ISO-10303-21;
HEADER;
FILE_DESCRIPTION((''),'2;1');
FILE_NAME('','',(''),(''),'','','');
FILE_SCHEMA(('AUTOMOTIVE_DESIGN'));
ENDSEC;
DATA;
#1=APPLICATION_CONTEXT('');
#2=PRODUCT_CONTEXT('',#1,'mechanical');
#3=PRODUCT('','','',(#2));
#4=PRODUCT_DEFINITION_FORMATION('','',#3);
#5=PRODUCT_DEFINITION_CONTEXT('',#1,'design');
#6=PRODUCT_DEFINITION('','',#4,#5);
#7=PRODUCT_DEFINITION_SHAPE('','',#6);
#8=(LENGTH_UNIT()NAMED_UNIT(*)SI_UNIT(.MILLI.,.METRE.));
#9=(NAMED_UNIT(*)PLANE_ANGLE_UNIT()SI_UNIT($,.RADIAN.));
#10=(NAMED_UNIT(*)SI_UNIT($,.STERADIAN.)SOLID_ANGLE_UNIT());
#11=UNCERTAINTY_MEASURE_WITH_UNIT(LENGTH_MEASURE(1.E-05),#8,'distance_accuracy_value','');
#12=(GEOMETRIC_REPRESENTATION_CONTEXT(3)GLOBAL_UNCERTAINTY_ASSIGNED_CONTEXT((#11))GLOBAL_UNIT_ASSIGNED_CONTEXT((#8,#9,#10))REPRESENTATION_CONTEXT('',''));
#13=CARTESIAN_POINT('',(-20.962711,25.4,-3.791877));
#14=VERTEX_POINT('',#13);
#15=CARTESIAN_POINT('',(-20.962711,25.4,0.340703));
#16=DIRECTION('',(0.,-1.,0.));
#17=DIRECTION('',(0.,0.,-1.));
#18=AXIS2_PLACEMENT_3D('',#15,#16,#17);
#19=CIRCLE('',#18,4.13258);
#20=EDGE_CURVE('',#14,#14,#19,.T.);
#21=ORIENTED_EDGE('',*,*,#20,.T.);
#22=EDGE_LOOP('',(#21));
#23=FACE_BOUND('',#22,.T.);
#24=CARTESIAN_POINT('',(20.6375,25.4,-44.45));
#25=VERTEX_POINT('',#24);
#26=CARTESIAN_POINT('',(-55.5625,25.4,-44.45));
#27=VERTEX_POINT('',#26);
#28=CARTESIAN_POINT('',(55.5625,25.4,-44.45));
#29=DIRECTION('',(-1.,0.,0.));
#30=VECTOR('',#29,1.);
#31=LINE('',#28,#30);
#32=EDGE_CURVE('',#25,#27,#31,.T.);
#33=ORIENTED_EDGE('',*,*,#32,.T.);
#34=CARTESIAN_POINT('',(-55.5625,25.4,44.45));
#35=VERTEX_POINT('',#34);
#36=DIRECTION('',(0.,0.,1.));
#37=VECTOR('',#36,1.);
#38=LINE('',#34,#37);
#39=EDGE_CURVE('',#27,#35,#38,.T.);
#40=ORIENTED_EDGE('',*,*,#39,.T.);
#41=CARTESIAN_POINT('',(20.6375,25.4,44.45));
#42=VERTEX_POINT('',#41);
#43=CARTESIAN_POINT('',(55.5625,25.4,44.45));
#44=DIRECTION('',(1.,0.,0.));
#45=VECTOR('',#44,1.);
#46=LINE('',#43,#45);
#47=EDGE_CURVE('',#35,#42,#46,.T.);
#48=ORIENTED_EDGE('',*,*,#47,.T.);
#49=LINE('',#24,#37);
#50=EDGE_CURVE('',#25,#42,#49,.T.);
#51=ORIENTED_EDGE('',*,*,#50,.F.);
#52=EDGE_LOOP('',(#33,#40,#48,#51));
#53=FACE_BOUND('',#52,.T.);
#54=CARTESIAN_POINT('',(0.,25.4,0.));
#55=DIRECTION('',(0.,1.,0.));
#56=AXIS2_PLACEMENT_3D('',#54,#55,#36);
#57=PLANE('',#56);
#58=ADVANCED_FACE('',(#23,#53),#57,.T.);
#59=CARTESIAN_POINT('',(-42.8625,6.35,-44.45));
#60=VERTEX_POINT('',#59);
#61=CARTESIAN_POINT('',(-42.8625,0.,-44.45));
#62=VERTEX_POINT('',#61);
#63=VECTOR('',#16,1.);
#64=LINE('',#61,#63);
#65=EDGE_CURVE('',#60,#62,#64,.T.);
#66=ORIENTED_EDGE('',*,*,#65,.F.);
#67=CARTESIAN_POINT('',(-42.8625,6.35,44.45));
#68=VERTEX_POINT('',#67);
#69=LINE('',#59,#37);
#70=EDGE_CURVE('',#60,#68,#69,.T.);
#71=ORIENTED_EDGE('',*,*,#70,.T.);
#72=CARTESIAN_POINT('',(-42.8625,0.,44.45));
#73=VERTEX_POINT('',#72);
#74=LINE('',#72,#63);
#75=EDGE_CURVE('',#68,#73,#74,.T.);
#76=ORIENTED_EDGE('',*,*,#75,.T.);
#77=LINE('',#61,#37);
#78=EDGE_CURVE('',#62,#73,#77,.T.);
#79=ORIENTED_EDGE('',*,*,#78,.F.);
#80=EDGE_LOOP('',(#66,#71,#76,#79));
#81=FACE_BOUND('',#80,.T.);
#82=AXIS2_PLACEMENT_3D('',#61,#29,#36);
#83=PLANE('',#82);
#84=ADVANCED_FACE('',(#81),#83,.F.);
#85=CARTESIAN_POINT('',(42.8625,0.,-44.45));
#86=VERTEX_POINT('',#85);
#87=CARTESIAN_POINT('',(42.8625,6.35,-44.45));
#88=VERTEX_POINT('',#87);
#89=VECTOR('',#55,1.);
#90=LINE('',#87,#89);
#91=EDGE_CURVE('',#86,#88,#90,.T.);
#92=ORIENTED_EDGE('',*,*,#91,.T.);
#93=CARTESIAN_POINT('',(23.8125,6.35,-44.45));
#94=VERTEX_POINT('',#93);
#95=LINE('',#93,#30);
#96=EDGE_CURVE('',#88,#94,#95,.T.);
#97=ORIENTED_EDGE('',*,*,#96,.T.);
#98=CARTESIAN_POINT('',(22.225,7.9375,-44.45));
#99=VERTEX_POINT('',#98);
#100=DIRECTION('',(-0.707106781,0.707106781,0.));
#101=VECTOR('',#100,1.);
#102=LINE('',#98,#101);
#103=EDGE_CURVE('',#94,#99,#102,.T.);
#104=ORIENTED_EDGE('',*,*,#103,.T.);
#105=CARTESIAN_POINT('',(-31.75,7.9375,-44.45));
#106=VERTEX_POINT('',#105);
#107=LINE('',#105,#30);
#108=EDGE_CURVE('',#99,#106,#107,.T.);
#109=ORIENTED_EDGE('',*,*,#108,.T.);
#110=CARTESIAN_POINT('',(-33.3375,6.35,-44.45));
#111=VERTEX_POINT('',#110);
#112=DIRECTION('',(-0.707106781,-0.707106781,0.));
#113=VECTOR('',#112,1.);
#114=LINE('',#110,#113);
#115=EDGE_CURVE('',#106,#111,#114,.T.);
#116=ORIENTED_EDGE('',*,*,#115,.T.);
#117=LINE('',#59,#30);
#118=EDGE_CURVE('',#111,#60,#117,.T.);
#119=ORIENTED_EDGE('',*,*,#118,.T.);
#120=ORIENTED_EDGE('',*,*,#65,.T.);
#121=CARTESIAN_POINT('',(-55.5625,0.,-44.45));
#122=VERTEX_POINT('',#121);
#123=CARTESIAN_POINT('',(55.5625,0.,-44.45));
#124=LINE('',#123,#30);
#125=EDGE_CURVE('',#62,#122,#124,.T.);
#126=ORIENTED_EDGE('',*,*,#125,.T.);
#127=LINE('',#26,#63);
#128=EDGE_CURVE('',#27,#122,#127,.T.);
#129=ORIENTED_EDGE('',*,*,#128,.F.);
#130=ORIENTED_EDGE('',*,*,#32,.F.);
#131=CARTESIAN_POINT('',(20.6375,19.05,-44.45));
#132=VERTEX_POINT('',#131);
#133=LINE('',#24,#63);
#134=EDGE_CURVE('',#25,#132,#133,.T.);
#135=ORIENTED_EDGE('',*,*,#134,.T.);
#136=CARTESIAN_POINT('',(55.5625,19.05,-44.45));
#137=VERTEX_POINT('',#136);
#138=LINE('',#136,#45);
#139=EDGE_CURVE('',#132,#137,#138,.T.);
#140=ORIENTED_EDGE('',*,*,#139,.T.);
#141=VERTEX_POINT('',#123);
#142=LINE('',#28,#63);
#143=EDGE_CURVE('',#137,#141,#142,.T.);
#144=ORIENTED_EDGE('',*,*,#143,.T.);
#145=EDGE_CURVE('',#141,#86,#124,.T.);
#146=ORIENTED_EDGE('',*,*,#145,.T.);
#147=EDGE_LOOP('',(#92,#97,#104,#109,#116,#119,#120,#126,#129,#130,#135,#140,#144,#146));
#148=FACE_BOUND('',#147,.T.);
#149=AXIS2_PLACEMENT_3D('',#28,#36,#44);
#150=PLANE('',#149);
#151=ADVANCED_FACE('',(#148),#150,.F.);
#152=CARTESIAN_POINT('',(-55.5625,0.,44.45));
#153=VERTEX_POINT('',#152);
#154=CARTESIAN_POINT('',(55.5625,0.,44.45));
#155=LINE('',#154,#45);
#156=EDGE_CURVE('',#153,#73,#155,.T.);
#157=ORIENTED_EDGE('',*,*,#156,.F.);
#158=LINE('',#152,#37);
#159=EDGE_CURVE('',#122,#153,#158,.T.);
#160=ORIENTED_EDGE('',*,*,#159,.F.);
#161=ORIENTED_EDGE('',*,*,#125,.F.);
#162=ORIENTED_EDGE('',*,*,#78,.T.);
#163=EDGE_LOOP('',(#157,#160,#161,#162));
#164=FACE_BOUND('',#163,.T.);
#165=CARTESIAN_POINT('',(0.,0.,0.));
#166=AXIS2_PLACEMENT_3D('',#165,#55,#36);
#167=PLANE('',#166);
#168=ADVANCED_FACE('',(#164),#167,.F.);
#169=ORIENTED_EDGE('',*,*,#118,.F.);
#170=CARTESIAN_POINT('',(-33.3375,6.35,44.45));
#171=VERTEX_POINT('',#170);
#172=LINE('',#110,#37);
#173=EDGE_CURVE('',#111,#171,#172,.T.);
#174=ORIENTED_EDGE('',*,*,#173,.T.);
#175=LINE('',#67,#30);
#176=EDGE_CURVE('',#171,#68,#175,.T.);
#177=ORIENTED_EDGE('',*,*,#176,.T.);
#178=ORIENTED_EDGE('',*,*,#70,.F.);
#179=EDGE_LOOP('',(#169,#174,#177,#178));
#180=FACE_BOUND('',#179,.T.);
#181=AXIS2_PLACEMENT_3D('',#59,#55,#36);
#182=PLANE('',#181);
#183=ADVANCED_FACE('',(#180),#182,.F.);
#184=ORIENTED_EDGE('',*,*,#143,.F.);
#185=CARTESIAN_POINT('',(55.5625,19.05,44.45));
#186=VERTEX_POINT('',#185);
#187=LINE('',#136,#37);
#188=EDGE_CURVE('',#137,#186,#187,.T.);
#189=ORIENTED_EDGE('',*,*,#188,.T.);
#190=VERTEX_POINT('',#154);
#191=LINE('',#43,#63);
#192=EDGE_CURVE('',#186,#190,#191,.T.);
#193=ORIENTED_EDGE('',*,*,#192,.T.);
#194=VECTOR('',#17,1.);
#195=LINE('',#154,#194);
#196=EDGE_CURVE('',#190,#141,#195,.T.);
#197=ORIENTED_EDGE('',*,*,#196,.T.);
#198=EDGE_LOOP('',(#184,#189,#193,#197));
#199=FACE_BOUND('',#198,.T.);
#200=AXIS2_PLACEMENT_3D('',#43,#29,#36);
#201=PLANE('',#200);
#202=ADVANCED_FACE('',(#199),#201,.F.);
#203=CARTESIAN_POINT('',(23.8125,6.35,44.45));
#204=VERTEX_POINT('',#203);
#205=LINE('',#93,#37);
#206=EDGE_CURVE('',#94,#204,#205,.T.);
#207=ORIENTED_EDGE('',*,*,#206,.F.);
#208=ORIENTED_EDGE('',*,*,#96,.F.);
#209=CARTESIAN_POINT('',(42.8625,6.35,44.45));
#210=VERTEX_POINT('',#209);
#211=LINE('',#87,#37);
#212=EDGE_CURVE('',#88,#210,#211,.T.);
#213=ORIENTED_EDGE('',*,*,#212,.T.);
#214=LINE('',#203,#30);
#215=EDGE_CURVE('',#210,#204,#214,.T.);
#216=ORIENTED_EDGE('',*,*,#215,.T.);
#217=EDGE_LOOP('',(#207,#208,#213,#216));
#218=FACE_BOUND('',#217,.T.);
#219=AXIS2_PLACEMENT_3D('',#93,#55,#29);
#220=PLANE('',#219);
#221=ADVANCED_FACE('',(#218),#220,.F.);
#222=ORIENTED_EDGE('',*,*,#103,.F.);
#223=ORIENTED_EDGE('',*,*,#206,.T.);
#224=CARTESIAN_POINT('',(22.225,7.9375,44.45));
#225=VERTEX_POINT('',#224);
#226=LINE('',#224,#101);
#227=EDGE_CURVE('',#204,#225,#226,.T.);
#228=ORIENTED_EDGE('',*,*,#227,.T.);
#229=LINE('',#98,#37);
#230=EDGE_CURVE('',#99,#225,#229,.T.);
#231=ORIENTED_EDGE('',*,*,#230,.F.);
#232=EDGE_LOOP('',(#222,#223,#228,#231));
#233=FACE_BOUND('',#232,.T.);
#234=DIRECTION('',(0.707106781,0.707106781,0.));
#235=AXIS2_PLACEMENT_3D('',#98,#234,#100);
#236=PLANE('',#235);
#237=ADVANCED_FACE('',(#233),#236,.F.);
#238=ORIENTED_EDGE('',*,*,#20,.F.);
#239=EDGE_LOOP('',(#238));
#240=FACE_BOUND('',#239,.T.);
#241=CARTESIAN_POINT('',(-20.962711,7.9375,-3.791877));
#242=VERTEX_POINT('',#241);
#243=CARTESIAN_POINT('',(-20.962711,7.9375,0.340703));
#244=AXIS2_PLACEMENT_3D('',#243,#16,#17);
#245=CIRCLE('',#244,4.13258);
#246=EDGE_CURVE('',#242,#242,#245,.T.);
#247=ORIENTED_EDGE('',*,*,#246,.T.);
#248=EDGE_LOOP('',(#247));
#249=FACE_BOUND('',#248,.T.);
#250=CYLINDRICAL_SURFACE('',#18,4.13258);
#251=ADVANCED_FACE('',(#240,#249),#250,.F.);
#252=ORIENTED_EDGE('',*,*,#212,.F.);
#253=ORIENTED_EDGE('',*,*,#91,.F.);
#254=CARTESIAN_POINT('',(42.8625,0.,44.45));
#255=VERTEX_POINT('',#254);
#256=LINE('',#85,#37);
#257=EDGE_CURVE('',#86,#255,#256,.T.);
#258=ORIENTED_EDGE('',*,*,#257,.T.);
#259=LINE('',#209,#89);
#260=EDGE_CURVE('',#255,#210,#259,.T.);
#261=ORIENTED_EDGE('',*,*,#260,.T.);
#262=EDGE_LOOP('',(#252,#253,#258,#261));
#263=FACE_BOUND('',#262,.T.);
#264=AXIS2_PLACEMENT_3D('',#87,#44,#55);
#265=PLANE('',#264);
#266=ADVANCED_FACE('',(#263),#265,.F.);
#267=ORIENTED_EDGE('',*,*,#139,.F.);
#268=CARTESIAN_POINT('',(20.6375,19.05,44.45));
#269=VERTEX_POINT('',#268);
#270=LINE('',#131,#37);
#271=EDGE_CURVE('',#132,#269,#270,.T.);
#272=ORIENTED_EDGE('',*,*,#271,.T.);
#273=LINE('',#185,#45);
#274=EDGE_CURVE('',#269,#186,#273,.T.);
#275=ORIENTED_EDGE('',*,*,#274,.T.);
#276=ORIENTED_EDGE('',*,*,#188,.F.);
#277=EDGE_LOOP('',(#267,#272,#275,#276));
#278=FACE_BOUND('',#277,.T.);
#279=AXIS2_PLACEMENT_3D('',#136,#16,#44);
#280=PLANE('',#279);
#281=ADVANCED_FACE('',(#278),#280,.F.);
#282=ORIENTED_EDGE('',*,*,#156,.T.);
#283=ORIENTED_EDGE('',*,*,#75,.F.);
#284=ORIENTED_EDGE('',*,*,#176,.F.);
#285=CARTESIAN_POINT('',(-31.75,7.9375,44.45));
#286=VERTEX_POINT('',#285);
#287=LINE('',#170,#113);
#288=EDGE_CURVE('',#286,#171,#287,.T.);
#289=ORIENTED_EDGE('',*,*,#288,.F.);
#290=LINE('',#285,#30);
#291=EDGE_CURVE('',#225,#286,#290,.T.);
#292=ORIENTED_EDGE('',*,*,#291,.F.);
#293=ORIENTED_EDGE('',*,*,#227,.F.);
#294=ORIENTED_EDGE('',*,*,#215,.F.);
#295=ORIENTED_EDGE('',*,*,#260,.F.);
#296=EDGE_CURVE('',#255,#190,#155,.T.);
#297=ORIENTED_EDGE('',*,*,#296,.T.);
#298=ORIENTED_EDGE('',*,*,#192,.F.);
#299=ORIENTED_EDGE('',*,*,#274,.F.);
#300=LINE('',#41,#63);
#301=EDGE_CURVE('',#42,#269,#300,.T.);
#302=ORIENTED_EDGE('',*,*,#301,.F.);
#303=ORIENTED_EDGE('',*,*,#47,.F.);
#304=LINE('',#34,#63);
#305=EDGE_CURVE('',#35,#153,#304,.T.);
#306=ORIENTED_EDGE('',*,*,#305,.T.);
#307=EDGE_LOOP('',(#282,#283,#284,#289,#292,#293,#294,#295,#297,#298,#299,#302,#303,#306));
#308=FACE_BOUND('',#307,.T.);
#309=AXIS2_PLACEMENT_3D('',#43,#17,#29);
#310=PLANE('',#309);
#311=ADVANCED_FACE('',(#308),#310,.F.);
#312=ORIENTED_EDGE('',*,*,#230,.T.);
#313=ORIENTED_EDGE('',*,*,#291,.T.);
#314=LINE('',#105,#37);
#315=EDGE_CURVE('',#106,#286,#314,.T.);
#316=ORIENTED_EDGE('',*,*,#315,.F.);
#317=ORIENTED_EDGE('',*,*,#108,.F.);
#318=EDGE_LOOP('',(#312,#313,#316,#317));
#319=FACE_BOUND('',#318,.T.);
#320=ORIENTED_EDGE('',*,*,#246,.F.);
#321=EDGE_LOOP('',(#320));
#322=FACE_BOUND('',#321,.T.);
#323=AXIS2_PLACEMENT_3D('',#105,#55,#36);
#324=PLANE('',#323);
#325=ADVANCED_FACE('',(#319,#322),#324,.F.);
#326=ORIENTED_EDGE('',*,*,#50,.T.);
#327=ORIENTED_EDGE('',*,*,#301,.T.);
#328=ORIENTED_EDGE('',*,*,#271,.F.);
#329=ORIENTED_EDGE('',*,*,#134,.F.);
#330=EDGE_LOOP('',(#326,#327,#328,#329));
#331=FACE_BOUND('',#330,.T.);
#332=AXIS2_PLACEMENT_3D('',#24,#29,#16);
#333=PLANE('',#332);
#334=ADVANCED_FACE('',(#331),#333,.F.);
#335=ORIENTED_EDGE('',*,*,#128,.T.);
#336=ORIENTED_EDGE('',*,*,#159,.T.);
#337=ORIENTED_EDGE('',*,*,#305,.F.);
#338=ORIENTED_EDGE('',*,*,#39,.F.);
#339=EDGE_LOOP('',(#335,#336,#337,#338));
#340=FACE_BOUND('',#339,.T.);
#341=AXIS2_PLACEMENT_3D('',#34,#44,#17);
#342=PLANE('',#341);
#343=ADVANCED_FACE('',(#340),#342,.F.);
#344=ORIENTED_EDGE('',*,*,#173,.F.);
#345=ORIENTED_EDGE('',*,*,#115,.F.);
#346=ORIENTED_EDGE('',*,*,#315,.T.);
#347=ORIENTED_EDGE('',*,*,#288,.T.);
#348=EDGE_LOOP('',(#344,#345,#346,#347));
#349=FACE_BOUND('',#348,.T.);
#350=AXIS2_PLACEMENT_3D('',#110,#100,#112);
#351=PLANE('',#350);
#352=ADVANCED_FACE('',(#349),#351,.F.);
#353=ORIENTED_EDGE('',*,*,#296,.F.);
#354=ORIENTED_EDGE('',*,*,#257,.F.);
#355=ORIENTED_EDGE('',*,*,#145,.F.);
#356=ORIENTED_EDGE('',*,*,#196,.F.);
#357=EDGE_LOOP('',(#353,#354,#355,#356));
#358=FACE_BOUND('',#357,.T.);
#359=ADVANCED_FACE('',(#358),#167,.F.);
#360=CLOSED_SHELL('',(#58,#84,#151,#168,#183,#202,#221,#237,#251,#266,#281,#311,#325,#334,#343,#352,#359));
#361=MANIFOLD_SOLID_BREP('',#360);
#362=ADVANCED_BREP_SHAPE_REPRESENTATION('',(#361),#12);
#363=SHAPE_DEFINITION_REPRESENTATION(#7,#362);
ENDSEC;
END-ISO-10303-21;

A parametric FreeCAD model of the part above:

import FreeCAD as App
import Part
import Sketcher

V = App.Vector
Q = App.Units.Quantity

doc = App.newDocument("Part")
params = doc.addObject("Spreadsheet::Sheet", "Params")
for row, (alias, value) in enumerate([
    ("sketch1_height", "3.5 in"),
    ("sketch1_width", "4.375 in"),
    ("pad1_length", "1 in"),
    ("sketch2_width", "0.75 in"),
    ("sketch2_height", "0.25 in"),
    ("sketch2_width2", "3.375 in"),
    ("sketch2_width3", "2.125 in"),
    ("sketch2_width4", "1.375 in"),
], start=1):
    params.set(f"A{row}", alias)
    params.set(f"B{row}", "=" + value)
    params.setAlias(f"B{row}", alias)

body = doc.addObject("PartDesign::Body", "Body")

# Sketch on XZ plane
sketch1 = body.newObject("Sketcher::SketchObject", "Sketch")
sketch1.AttachmentSupport = (doc.getObject("XZ_Plane"), [""])
sketch1.MapMode = "FlatFace"
sketch1.addGeometry(Part.LineSegment(V(-56, -44, 0), V(-56, 44, 0)), False)
sketch1.addGeometry(Part.LineSegment(V(-56, 44, 0), V(56, 44, 0)), False)
sketch1.addGeometry(Part.LineSegment(V(56, 44, 0), V(56, -44, 0)), False)
sketch1.addGeometry(Part.LineSegment(V(56, -44, 0), V(-56, -44, 0)), False)
sketch1.addConstraint(Sketcher.Constraint("Coincident", 0, 2, 1, 1))
sketch1.addConstraint(Sketcher.Constraint("Coincident", 1, 2, 2, 1))
sketch1.addConstraint(Sketcher.Constraint("Coincident", 2, 2, 3, 1))
sketch1.addConstraint(Sketcher.Constraint("Coincident", 3, 2, 0, 1))
sketch1.addConstraint(Sketcher.Constraint("Vertical", 0))
sketch1.addConstraint(Sketcher.Constraint("Horizontal", 1))
sketch1.addConstraint(Sketcher.Constraint("Vertical", 2))
sketch1.addConstraint(Sketcher.Constraint("Horizontal", 3))
sketch1.addConstraint(Sketcher.Constraint("Symmetric", 0, 2, 2, 2, -1, 1))
sketch1.addConstraint(Sketcher.Constraint("DistanceY", 0, 1, 0, 2, Q("3.5 in")))
sketch1.addConstraint(Sketcher.Constraint("DistanceX", 1, 1, 1, 2, Q("4.375 in")))
sketch1.setExpression("Constraints[9]", "Params.sketch1_height")
sketch1.setExpression("Constraints[10]", "Params.sketch1_width")
pad1 = body.newObject("PartDesign::Pad", "Pad")
pad1.Profile = sketch1
pad1.setExpression("Length", "Params.pad1_length")
pad1.Reversed = True

# Sketch on XY plane
sketch2 = body.newObject("Sketcher::SketchObject", "Sketch001")
sketch2.AttachmentSupport = (doc.getObject("XY_Plane"), [""])
sketch2.MapMode = "FlatFace"
sketch2.AttachmentOffset = App.Placement(V(0, 0, 1.75 * 25.4), App.Rotation())
sketch2.addGeometry(Part.LineSegment(V(-42.9, 6.3, 0), V(-42.9, 0, 0)), False)
sketch2.addGeometry(Part.LineSegment(V(-42.9, 0, 0), V(42.9, 0, 0)), False)
sketch2.addGeometry(Part.LineSegment(V(42.9, 0, 0), V(42.9, 6.3, 0)), False)
sketch2.addGeometry(Part.LineSegment(V(42.9, 6.3, 0), V(23.8, 6.3, 0)), False)
sketch2.addGeometry(Part.LineSegment(V(23.8, 6.3, 0), V(22.2, 7.9, 0)), False)
sketch2.addGeometry(Part.LineSegment(V(22.2, 7.9, 0), V(-31.8, 7.9, 0)), False)
sketch2.addGeometry(Part.LineSegment(V(-31.8, 7.9, 0), V(-33.3, 6.3, 0)), False)
sketch2.addGeometry(Part.LineSegment(V(-33.3, 6.3, 0), V(-42.9, 6.3, 0)), False)
sketch2.addGeometry(Part.LineSegment(V(20.6, 25.4, 0), V(20.6, 19.1, 0)), False)
sketch2.addGeometry(Part.LineSegment(V(20.6, 19.1, 0), V(55.6, 19.1, 0)), False)
sketch2.addGeometry(Part.LineSegment(V(55.6, 19.1, 0), V(55.6, 25.4, 0)), False)
sketch2.addGeometry(Part.LineSegment(V(55.6, 25.4, 0), V(20.6, 25.4, 0)), False)
sketch2.addConstraint(Sketcher.Constraint("Coincident", 0, 2, 1, 1))
sketch2.addConstraint(Sketcher.Constraint("Coincident", 1, 2, 2, 1))
sketch2.addConstraint(Sketcher.Constraint("Coincident", 2, 2, 3, 1))
sketch2.addConstraint(Sketcher.Constraint("Coincident", 3, 2, 4, 1))
sketch2.addConstraint(Sketcher.Constraint("Coincident", 4, 2, 5, 1))
sketch2.addConstraint(Sketcher.Constraint("Coincident", 5, 2, 6, 1))
sketch2.addConstraint(Sketcher.Constraint("Coincident", 6, 2, 7, 1))
sketch2.addConstraint(Sketcher.Constraint("Coincident", 7, 2, 0, 1))
sketch2.addConstraint(Sketcher.Constraint("Coincident", 8, 2, 9, 1))
sketch2.addConstraint(Sketcher.Constraint("Coincident", 9, 2, 10, 1))
sketch2.addConstraint(Sketcher.Constraint("Coincident", 10, 2, 11, 1))
sketch2.addConstraint(Sketcher.Constraint("Coincident", 11, 2, 8, 1))
sketch2.addConstraint(Sketcher.Constraint("Vertical", 0))
sketch2.addConstraint(Sketcher.Constraint("Horizontal", 1))
sketch2.addConstraint(Sketcher.Constraint("Vertical", 2))
sketch2.addConstraint(Sketcher.Constraint("Horizontal", 3))
sketch2.addConstraint(Sketcher.Constraint("Horizontal", 5))
sketch2.addConstraint(Sketcher.Constraint("Horizontal", 7))
sketch2.addConstraint(Sketcher.Constraint("Vertical", 8))
sketch2.addConstraint(Sketcher.Constraint("Horizontal", 9))
sketch2.addConstraint(Sketcher.Constraint("Vertical", 10))
sketch2.addConstraint(Sketcher.Constraint("Horizontal", 11))
sketch2.addConstraint(Sketcher.Constraint("Symmetric", 0, 2, 1, 2, -1, 1))
sketch2.addConstraint(Sketcher.Constraint("Perpendicular", 4, 6))
sketch2.addConstraint(Sketcher.Constraint("Horizontal", 3, 2, 6, 2))
sketch2.addConstraint(Sketcher.Constraint("Equal", 2, 8))
sketch2.addConstraint(Sketcher.Constraint("Equal", 4, 6))
sketch2.addConstraint(Sketcher.Constraint("DistanceY", -1, 1, 10, 2, Q("1 in")))
sketch2.addConstraint(Sketcher.Constraint("DistanceX", 6, 2, 2, 2, Q("3 in")))
sketch2.addConstraint(Sketcher.Constraint("DistanceX", 3, 2, 3, 1, Q("0.75 in")))
sketch2.addConstraint(Sketcher.Constraint("DistanceY", 0, 2, 0, 1, Q("0.25 in")))
sketch2.addConstraint(Sketcher.Constraint("DistanceX", 2, 2, 9, 2, Q("0.5 in")))
sketch2.addConstraint(Sketcher.Constraint("DistanceX", 1, 1, 1, 2, Q("3.375 in")))
sketch2.addConstraint(Sketcher.Constraint("DistanceX", 5, 2, 5, 1, Q("2.125 in")))
sketch2.addConstraint(Sketcher.Constraint("DistanceX", 9, 1, 9, 2, Q("1.375 in")))
sketch2.setExpression("Constraints[29]", "Params.sketch2_width")
sketch2.setExpression("Constraints[30]", "Params.sketch2_height")
sketch2.setExpression("Constraints[32]", "Params.sketch2_width2")
sketch2.setExpression("Constraints[33]", "Params.sketch2_width3")
sketch2.setExpression("Constraints[34]", "Params.sketch2_width4")
pocket1 = body.newObject("PartDesign::Pocket", "Pocket")
pocket1.Profile = sketch2
pocket1.Type = "ThroughAll"

# Sketch on XZ plane
sketch3 = body.newObject("Sketcher::SketchObject", "Sketch002")
sketch3.AttachmentSupport = (doc.getObject("XZ_Plane"), [""])
sketch3.MapMode = "FlatFace"
sketch3.AttachmentOffset = App.Placement(V(0, 0, -0.3125 * 25.4), App.Rotation())
sketch3.addGeometry(Part.Circle(V(-21, 0.3, 0), V(0, 0, 1), 4.1), False)
sketch3.addConstraint(Sketcher.Constraint("Diameter", 0, Q("0.3254 in")))
sketch3.addConstraint(Sketcher.Constraint("DistanceX", 0, 3, -1, 1, 20.962711))
sketch3.addConstraint(Sketcher.Constraint("DistanceY", -1, 1, 0, 3, 0.340703))
pocket2 = body.newObject("PartDesign::Pocket", "Pocket001")
pocket2.Profile = sketch3
pocket2.Type = "ThroughAll"

doc.recompute()
